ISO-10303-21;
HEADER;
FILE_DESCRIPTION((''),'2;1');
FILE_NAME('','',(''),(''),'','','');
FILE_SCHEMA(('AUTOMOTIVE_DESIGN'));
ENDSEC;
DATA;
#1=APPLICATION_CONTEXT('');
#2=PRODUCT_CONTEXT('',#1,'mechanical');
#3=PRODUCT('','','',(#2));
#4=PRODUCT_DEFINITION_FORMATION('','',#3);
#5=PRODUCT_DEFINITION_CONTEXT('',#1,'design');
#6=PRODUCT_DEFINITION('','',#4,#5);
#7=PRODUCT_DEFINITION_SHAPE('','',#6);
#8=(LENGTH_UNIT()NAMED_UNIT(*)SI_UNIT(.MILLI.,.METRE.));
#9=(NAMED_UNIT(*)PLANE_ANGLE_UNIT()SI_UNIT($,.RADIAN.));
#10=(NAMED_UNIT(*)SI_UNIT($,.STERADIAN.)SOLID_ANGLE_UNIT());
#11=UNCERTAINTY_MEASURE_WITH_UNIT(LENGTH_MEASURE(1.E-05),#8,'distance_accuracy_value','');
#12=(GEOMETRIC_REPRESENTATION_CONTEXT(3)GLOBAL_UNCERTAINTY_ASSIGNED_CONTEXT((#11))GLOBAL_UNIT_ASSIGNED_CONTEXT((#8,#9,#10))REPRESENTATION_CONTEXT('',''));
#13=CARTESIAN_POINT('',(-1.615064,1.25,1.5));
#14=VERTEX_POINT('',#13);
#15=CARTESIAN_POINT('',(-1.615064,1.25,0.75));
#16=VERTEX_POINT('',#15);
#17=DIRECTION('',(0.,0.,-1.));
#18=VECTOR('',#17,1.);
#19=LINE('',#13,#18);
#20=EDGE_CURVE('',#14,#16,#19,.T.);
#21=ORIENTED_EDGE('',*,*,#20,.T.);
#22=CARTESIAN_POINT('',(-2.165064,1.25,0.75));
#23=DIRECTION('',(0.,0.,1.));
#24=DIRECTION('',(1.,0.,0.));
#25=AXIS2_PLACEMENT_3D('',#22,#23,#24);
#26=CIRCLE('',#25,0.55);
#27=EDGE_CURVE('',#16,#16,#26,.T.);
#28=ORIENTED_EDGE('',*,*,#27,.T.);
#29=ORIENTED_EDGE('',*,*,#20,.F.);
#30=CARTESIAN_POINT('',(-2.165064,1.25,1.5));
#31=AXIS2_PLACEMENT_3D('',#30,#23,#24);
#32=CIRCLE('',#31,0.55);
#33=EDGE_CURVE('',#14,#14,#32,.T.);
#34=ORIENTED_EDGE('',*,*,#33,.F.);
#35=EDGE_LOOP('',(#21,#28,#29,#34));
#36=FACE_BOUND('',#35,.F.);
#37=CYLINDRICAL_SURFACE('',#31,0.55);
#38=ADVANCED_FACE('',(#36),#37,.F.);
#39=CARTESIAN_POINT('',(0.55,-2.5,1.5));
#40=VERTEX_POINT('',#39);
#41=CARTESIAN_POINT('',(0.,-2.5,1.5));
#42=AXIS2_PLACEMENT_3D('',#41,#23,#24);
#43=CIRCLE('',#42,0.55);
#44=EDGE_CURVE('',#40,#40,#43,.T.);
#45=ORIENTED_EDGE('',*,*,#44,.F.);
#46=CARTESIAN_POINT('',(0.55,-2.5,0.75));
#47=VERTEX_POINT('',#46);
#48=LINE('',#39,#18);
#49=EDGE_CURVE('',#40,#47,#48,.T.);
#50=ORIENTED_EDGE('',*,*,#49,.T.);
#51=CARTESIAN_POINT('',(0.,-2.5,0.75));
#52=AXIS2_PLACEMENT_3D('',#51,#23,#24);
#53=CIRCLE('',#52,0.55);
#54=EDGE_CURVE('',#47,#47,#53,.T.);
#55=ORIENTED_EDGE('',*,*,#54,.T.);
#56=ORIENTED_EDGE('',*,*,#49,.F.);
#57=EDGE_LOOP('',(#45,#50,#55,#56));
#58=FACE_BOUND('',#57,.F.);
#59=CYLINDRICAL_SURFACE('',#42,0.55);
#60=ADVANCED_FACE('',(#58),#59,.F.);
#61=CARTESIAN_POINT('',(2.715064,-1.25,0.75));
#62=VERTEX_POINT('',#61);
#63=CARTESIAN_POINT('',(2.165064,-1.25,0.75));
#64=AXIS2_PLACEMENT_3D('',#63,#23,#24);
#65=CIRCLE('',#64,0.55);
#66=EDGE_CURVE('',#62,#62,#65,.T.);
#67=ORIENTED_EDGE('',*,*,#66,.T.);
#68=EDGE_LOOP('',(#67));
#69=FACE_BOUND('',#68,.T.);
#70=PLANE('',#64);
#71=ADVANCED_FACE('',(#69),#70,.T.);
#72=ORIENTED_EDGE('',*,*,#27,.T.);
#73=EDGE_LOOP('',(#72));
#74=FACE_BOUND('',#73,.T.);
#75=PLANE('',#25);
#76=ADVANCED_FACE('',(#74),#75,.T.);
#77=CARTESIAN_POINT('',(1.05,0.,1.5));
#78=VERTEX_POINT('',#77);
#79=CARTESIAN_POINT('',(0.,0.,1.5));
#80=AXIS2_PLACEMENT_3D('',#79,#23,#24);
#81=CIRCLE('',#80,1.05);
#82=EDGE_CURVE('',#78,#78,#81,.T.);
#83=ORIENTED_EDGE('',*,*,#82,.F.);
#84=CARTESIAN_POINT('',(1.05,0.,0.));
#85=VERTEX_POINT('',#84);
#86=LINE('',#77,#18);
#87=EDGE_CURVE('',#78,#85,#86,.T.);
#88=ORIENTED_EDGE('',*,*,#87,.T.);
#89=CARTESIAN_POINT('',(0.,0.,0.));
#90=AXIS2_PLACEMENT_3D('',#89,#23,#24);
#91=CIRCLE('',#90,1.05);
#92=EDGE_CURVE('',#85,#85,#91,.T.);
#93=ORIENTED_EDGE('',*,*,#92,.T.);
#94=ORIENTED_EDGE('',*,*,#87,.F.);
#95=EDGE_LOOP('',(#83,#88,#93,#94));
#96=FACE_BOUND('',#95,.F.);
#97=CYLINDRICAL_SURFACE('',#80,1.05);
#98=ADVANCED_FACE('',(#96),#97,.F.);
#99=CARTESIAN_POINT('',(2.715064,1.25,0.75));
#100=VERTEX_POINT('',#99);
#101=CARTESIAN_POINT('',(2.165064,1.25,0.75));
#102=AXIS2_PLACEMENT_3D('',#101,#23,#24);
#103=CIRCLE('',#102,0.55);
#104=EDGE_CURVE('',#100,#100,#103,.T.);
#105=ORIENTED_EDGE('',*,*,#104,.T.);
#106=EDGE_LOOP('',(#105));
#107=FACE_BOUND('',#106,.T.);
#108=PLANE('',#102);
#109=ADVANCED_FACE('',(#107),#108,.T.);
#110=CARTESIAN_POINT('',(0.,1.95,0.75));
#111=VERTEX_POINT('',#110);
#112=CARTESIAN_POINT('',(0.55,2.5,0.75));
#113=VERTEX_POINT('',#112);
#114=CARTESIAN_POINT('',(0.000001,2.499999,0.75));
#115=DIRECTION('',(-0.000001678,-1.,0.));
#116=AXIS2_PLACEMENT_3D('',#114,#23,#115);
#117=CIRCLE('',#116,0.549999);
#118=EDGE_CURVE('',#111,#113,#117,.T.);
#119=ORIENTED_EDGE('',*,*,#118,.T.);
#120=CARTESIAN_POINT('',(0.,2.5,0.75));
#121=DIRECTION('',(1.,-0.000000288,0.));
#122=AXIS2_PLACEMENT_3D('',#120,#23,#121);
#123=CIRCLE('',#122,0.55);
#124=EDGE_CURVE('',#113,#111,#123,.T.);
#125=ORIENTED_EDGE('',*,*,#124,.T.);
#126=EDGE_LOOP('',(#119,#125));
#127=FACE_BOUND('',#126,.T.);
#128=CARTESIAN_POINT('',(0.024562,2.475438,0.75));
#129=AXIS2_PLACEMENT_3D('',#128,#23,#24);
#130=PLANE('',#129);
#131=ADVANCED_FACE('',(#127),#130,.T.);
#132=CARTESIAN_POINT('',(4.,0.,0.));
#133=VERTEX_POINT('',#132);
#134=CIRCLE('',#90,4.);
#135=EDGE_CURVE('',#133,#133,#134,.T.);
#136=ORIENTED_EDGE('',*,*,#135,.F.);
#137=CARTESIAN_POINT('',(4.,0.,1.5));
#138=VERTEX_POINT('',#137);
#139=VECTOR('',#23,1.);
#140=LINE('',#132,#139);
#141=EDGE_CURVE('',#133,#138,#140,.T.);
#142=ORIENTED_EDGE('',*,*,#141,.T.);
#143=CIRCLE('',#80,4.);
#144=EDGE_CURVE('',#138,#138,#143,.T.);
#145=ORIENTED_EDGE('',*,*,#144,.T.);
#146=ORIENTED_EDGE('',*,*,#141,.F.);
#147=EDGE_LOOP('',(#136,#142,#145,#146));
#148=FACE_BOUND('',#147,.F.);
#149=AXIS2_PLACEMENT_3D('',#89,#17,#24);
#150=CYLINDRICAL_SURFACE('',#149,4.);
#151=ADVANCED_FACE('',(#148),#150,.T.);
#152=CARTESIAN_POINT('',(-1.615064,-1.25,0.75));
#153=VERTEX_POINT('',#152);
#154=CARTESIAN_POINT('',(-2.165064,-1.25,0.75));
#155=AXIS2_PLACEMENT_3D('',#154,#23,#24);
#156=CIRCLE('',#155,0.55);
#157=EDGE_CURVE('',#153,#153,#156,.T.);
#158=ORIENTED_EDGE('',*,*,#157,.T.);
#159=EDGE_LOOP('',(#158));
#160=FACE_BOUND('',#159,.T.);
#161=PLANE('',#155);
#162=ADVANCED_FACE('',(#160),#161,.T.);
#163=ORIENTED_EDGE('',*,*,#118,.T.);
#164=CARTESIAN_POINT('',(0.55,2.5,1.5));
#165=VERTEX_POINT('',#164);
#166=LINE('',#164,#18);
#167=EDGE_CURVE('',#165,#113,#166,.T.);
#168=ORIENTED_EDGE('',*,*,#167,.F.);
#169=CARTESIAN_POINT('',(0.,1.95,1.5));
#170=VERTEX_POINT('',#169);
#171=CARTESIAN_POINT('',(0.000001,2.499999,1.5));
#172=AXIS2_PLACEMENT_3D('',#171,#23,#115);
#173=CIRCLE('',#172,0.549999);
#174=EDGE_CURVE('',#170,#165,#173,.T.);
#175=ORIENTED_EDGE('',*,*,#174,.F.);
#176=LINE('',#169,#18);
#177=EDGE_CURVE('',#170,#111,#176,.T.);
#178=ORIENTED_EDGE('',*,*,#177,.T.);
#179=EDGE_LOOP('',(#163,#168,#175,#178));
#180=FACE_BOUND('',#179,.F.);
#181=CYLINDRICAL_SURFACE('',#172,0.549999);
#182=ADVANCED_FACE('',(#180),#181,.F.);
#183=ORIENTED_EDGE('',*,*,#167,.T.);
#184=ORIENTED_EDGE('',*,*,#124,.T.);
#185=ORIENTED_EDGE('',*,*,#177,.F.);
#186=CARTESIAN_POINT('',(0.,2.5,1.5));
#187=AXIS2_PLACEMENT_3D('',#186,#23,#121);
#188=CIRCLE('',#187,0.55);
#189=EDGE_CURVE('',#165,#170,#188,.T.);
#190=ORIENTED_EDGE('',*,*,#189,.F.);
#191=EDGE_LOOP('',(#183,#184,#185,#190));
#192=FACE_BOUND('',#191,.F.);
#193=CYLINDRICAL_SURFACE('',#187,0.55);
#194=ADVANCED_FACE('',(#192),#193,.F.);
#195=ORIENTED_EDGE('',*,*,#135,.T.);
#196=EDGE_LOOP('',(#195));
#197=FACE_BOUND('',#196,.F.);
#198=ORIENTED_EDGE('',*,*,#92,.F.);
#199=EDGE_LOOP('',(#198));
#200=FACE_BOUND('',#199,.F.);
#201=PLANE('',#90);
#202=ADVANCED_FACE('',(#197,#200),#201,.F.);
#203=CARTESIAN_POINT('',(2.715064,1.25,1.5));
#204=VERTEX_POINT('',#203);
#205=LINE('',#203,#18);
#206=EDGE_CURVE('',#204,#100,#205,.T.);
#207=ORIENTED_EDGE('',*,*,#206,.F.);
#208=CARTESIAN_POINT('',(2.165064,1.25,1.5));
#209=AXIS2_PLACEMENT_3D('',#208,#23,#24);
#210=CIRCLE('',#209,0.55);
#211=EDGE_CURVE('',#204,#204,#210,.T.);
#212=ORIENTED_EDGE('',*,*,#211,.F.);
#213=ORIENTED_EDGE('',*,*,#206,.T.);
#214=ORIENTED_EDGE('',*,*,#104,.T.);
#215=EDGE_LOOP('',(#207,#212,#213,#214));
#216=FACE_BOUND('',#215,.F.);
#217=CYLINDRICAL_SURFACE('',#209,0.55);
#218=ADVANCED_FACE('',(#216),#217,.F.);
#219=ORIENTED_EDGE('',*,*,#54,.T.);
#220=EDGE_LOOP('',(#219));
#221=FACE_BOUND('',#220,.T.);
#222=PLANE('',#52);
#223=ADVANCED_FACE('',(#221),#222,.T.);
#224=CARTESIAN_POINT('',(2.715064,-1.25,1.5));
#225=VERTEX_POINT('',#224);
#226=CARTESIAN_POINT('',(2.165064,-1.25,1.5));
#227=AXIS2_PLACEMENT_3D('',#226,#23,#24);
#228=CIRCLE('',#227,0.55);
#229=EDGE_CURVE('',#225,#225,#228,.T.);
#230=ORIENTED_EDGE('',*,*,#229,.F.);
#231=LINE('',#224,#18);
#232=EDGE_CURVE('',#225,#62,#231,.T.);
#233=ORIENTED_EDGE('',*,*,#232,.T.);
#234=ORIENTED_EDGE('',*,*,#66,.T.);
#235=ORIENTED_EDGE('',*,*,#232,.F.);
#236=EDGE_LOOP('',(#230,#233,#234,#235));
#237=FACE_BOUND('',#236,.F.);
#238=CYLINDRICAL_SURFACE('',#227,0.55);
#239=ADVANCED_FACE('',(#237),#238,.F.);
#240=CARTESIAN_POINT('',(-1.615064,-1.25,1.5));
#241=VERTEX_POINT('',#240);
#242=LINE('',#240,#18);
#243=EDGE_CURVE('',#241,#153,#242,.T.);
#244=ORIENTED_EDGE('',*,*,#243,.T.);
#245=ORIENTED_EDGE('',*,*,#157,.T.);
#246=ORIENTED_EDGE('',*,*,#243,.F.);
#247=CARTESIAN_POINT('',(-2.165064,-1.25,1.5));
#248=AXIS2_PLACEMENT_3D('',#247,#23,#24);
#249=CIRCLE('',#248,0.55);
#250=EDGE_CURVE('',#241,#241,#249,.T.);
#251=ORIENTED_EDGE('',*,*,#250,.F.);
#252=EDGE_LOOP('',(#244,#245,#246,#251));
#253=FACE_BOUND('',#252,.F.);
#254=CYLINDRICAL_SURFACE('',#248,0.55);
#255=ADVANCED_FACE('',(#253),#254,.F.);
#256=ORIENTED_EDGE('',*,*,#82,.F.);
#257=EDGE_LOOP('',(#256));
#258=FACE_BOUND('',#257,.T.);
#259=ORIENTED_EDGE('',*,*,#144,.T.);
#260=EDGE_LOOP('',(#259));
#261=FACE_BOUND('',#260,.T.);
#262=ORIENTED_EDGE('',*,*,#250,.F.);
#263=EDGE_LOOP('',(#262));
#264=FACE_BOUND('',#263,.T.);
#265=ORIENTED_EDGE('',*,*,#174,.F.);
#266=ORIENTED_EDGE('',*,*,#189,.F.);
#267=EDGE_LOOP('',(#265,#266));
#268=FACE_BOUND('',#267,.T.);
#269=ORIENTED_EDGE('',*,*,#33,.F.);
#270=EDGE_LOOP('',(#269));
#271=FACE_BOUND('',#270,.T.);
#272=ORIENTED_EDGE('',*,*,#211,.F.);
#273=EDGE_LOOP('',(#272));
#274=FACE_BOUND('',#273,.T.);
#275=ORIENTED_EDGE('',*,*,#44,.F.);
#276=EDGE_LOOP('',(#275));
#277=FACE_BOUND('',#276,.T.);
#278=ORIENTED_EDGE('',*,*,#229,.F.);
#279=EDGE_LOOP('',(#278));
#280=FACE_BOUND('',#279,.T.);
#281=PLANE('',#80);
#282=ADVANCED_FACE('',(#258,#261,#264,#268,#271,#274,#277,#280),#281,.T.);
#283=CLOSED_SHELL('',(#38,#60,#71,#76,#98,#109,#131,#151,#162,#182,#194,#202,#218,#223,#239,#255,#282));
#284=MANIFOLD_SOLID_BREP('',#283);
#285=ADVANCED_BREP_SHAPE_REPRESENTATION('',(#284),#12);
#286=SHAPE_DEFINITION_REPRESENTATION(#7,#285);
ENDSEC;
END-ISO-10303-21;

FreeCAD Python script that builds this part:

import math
import FreeCAD as App
import Part
import Sketcher

V = App.Vector
Q = App.Units.Quantity

doc = App.newDocument("Part")
body = doc.addObject("PartDesign::Body", "Body")

sketch1 = body.newObject("Sketcher::SketchObject", "Sketch")
sketch1.AttachmentSupport = (doc.getObject("XY_Plane"), [""])
sketch1.MapMode = "FlatFace"
sketch1.addGeometry(Part.Circle(V(0, 0, 0), V(0, 0, 1), 4), False)
sketch1.addConstraint(Sketcher.Constraint("Coincident", 0, 3, -1, 1))
sketch1.addConstraint(Sketcher.Constraint("Diameter", 0, Q("8 mm")))
pad1 = body.newObject("PartDesign::Pad", "Pad")
pad1.Profile = sketch1
pad1.Length = 1.5

sketch2 = body.newObject("Sketcher::SketchObject", "Sketch001")
sketch2.AttachmentSupport = (doc.getObject("XY_Plane"), [""])
sketch2.MapMode = "FlatFace"
sketch2.AttachmentOffset = App.Placement(V(0, 0, 1.5), App.Rotation())
sketch2.addGeometry(Part.ArcOfCircle(Part.Circle(V(0.000001, 2.499999, 0), V(0, 0, 1), 0.549999), math.radians(-90.000096), math.radians(0.000096)), False)
sketch2.addGeometry(Part.ArcOfCircle(Part.Circle(V(0, 2.5, 0), V(0, 0, 1), 0.55), math.radians(-0.000016), math.radians(270.000016)), False)
sketch2.addGeometry(Part.Circle(V(-2.165064, 1.25, 0), V(0, 0, 1), 0.55), False)
sketch2.addGeometry(Part.Circle(V(-2.165064, -1.25, 0), V(0, 0, 1), 0.55), False)
sketch2.addGeometry(Part.Circle(V(2.165064, 1.25, 0), V(0, 0, 1), 0.55), False)
sketch2.addGeometry(Part.Circle(V(2.165064, -1.25, 0), V(0, 0, 1), 0.55), False)
sketch2.addGeometry(Part.Circle(V(0, -2.5, 0), V(0, 0, 1), 0.55), False)
sketch2.addConstraint(Sketcher.Constraint("Tangent", 0, 1, 1, 2))
sketch2.addConstraint(Sketcher.Constraint("Coincident", 1, 1, 0, 2))
sketch2.addConstraint(Sketcher.Constraint("Equal", 1, 2))
sketch2.addConstraint(Sketcher.Constraint("Equal", 2, 3))
sketch2.addConstraint(Sketcher.Constraint("Equal", 3, 4))
sketch2.addConstraint(Sketcher.Constraint("Equal", 4, 5))
sketch2.addConstraint(Sketcher.Constraint("Equal", 5, 6))
sketch2.addConstraint(Sketcher.Constraint("Symmetric", 3, 3, 4, 3, -1, 1))
sketch2.addConstraint(Sketcher.Constraint("Symmetric", 2, 3, 5, 3, -1, 1))
sketch2.addConstraint(Sketcher.Constraint("Symmetric", 0, 3, 6, 3, -1, 1))
sketch2.addConstraint(Sketcher.Constraint("Symmetric", 2, 3, 4, 3, -2))
sketch2.addConstraint(Sketcher.Constraint("PointOnObject", 0, 3, -2))
sketch2.addConstraint(Sketcher.Constraint("PointOnObject", 0, 1, -2))
sketch2.addConstraint(Sketcher.Constraint("Horizontal", 0, 3, 1, 1))
sketch2.addConstraint(Sketcher.Constraint("Diameter", 2, Q("1.1 mm")))
sketch2.addConstraint(Sketcher.Constraint("DistanceY", 6, 3, 0, 3, Q("4.999999 mm")))
sketch2.addConstraint(Sketcher.Constraint("DistanceY", 3, 3, 2, 3, Q("2.5 mm")))
sketch2.addConstraint(Sketcher.Constraint("DistanceX", 2, 3, 4, 3, Q("4.330128 mm")))
pocket1 = body.newObject("PartDesign::Pocket", "Pocket")
pocket1.Profile = sketch2
pocket1.Length = 0.75

sketch3 = body.newObject("Sketcher::SketchObject", "Sketch002")
sketch3.AttachmentSupport = (doc.getObject("XY_Plane"), [""])
sketch3.MapMode = "FlatFace"
sketch3.AttachmentOffset = App.Placement(V(0, 0, 1.5), App.Rotation())
sketch3.addGeometry(Part.Circle(V(0, 0, 0), V(0, 0, 1), 1.05), False)
sketch3.addConstraint(Sketcher.Constraint("Coincident", 0, 3, -1, 1))
sketch3.addConstraint(Sketcher.Constraint("Diameter", 0, Q("2.1 mm")))
pocket2 = body.newObject("PartDesign::Pocket", "Pocket001")
pocket2.Profile = sketch3
pocket2.Length = 25

doc.recompute()
